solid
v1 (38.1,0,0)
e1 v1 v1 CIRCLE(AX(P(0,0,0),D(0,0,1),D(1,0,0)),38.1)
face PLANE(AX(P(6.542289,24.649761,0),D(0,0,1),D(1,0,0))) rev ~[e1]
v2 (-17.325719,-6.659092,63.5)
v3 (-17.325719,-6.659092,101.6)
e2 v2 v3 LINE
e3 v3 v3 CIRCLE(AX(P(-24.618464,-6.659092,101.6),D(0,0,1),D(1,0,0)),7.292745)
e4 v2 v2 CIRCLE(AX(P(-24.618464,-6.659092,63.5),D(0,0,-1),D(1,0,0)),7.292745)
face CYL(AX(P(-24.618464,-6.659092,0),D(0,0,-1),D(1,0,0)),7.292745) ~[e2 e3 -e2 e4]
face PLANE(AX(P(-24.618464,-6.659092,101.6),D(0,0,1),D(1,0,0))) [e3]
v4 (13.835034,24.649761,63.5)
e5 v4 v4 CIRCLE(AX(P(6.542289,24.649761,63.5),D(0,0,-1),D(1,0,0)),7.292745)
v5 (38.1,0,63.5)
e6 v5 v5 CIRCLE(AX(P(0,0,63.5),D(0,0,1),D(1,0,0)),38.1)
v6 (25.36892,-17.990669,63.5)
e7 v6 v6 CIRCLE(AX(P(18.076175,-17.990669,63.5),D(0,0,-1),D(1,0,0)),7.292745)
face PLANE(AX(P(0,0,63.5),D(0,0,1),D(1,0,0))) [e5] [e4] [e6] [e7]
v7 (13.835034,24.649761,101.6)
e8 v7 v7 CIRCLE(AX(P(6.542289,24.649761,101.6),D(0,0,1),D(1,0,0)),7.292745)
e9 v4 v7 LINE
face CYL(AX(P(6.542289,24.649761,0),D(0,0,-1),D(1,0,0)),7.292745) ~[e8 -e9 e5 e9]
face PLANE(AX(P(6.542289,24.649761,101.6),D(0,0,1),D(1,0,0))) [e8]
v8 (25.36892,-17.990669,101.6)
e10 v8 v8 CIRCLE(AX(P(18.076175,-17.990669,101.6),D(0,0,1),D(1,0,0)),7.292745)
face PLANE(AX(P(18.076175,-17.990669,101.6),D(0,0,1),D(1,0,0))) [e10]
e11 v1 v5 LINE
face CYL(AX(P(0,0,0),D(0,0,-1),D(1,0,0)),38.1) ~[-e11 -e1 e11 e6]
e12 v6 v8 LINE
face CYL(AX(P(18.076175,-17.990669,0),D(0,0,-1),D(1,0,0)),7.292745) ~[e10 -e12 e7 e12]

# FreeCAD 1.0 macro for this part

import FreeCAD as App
import Part
import Sketcher
Q = App.Units.Quantity

doc = App.newDocument("Part")
body = doc.addObject("PartDesign::Body", "Body")

# Sketch on XY plane
sketch1 = doc.addObject("Sketcher::SketchObject", "Sketch")
body.addObject(sketch1)
sketch1.AttachmentSupport = (doc.XY_Plane, [""])
sketch1.MapMode = "FlatFace"
sketch1.addGeometry(Part.Circle(App.Vector(0, 0, 0), App.Vector(0, 0, 1), 38), False)
sketch1.addConstraint([
    Sketcher.Constraint("Coincident", 0, 3, -1, 1),
    Sketcher.Constraint("Diameter", 0, Q("3 in")),
])
pad1 = doc.addObject("PartDesign::Pad", "Pad")
body.addObject(pad1)
pad1.Profile = sketch1
pad1.Length = Q("2.5 in")

# Sketch on XY plane
sketch2 = doc.addObject("Sketcher::SketchObject", "Sketch001")
body.addObject(sketch2)
sketch2.AttachmentSupport = (doc.XY_Plane, [""])
sketch2.MapMode = "FlatFace"
sketch2.addGeometry([
    Part.Circle(App.Vector(7, 25, 0), App.Vector(0, 0, 1), 7),
    Part.Circle(App.Vector(-25, -7, 0), App.Vector(0, 0, 1), 7),
    Part.Circle(App.Vector(18, -18, 0), App.Vector(0, 0, 1), 7),
], False)
sketch2.addConstraint([
    Sketcher.Constraint("Equal", 0, 1),
    Sketcher.Constraint("Equal", 1, 2),
    Sketcher.Constraint("Diameter", 0, Q("14.58549 mm")),
    Sketcher.Constraint("DistanceX", -1, 1, 0, 3, Q("6.542289 mm")),
    Sketcher.Constraint("DistanceY", -1, 1, 0, 3, Q("24.649761 mm")),
    Sketcher.Constraint("DistanceY", 2, 3, -1, 1, Q("17.990669 mm")),
    Sketcher.Constraint("DistanceX", 1, 3, 2, 3, Q("42.694639 mm")),
    Sketcher.Constraint("DistanceX", 1, 3, -1, 1, Q("24.618464 mm")),
    Sketcher.Constraint("DistanceY", 1, 3, -1, 1, Q("6.659092 mm")),
])
pad2 = doc.addObject("PartDesign::Pad", "Pad001")
body.addObject(pad2)
pad2.Profile = sketch2
pad2.Length = Q("4 in")

doc.recompute()
